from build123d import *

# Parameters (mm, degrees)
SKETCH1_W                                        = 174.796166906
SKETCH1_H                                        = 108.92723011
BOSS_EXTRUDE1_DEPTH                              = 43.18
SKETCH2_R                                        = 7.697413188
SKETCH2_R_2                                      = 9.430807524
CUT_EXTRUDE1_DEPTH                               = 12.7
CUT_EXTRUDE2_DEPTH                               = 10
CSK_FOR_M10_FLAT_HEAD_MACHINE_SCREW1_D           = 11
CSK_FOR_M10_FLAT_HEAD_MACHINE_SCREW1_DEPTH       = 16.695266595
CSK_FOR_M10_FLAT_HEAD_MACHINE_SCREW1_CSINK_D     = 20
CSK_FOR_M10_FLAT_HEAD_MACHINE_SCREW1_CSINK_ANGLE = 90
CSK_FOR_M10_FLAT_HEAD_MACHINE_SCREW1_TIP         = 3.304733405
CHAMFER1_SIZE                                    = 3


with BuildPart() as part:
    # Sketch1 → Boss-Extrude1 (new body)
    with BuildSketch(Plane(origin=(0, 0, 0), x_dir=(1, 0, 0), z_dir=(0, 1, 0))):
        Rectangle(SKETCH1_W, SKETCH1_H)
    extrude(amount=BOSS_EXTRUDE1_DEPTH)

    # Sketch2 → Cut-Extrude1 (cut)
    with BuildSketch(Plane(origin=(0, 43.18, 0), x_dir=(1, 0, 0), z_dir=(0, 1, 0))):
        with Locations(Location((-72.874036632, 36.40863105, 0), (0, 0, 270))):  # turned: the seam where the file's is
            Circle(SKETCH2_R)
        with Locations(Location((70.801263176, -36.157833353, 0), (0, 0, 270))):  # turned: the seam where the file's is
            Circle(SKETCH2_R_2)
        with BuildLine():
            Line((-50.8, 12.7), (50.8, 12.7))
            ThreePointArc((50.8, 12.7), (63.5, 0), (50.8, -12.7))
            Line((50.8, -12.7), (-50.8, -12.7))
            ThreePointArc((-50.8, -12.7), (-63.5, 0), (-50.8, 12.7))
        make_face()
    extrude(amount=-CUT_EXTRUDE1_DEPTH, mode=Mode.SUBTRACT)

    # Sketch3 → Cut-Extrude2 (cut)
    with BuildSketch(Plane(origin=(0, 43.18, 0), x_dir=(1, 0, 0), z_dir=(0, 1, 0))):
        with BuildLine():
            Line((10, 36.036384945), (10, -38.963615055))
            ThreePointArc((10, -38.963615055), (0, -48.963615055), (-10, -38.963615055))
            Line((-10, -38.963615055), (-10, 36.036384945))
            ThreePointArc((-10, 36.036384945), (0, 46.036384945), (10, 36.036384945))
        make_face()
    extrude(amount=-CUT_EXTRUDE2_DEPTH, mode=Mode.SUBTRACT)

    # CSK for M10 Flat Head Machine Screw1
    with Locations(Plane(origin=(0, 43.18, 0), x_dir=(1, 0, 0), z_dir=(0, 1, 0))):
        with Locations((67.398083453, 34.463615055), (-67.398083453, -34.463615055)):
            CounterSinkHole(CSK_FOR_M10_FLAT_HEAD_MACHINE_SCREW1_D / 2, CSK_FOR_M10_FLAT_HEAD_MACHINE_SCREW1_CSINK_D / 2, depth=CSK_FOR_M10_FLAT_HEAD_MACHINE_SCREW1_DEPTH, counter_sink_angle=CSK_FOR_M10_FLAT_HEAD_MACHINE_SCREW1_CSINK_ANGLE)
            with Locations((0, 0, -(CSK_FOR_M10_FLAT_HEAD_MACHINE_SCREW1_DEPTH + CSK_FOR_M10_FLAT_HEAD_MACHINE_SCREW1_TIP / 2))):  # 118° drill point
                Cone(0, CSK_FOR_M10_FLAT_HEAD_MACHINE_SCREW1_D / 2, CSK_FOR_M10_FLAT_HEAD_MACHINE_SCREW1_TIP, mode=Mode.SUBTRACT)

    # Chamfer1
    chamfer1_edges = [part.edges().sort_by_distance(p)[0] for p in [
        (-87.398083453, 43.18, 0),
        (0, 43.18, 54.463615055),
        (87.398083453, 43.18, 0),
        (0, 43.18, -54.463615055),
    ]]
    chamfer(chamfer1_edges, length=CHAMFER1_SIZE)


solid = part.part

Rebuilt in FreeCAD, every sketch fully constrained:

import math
import FreeCAD as App
import Part
import Sketcher


def edges_at(feature, points):
    """Names of the edges that pass closest to the given points."""
    edges = feature.Shape.Edges
    near = lambda p: min(range(len(edges)), key=lambda i: edges[i].distToShape(Part.Vertex(*p))[0])
    return sorted({f"Edge{near(p) + 1}" for p in points})

doc = App.newDocument("Part")
body = doc.addObject("PartDesign::Body", "Body")

# Sketch on XZ plane
sketch1 = body.newObject("Sketcher::SketchObject", "Sketch")
sketch1.AttachmentSupport = (doc.getObject("XZ_Plane"), [""])
sketch1.MapMode = "FlatFace"
sketch1.addGeometry([
    Part.LineSegment(App.Vector(-87.398083, -54.463615, 0), App.Vector(-87.398083, 54.463615, 0)),
    Part.LineSegment(App.Vector(-87.398083, 54.463615, 0), App.Vector(87.398083, 54.463615, 0)),
    Part.LineSegment(App.Vector(87.398083, 54.463615, 0), App.Vector(87.398083, -54.463615, 0)),
    Part.LineSegment(App.Vector(87.398083, -54.463615, 0), App.Vector(-87.398083, -54.463615, 0)),
], False)
sketch1.addConstraint([
    Sketcher.Constraint("Coincident", 0, 2, 1, 1),
    Sketcher.Constraint("Coincident", 1, 2, 2, 1),
    Sketcher.Constraint("Coincident", 2, 2, 3, 1),
    Sketcher.Constraint("Coincident", 3, 2, 0, 1),
    Sketcher.Constraint("Vertical", 0),
    Sketcher.Constraint("Horizontal", 1),
    Sketcher.Constraint("Vertical", 2),
    Sketcher.Constraint("Horizontal", 3),
    Sketcher.Constraint("Symmetric", 0, 2, 2, 2, -1, 1),
    Sketcher.Constraint("DistanceY", 0, 1, 0, 2, 108.92723),
    Sketcher.Constraint("DistanceX", 1, 1, 1, 2, 174.796167),
])
pad1 = body.newObject("PartDesign::Pad", "Pad")
pad1.Profile = sketch1
pad1.Length = 43.18
pad1.Reversed = True

# Sketch on XZ plane
sketch2 = body.newObject("Sketcher::SketchObject", "Sketch001")
sketch2.AttachmentSupport = (doc.getObject("XZ_Plane"), [""])
sketch2.MapMode = "FlatFace"
sketch2.AttachmentOffset = App.Placement(App.Vector(0, 0, -43.18), App.Rotation())
sketch2.addGeometry([
    Part.Circle(App.Vector(-72.874037, -36.408631, 0), App.Vector(0, 0, 1), 7.697413),  # 0
    Part.Circle(App.Vector(70.801263, 36.157833, 0), App.Vector(0, 0, 1), 9.430808),  # 1
    Part.LineSegment(App.Vector(50.8, -12.7, 0), App.Vector(-50.8, -12.7, 0)),  # 2
    Part.ArcOfCircle(Part.Circle(App.Vector(-50.8, 0, 0), App.Vector(0, 0, 1), 12.7), math.radians(90), math.radians(270)),  # 3
    Part.LineSegment(App.Vector(-50.8, 12.7, 0), App.Vector(50.8, 12.7, 0)),  # 4
    Part.ArcOfCircle(Part.Circle(App.Vector(50.8, 0, 0), App.Vector(0, 0, 1), 12.7), math.radians(-90), math.radians(90)),  # 5
], False)
sketch2.addConstraint([
    Sketcher.Constraint("Tangent", 2, 2, 3, 2),
    Sketcher.Constraint("Tangent", 3, 1, 4, 1),
    Sketcher.Constraint("Tangent", 4, 2, 5, 2),
    Sketcher.Constraint("Tangent", 5, 1, 2, 1),
    Sketcher.Constraint("Horizontal", 2),
    Sketcher.Constraint("Horizontal", 4),
    Sketcher.Constraint("Symmetric", 3, 3, 5, 3, -1, 1),
    Sketcher.Constraint("Radius", 3, 12.7),
    Sketcher.Constraint("DistanceX", 2, 2, 2, 1, 101.6),
    Sketcher.Constraint("Diameter", 0, 15.394826),
    Sketcher.Constraint("Diameter", 1, 18.861615),
    Sketcher.Constraint("DistanceX", 0, 3, 1, 3, 143.6753),
    Sketcher.Constraint("DistanceY", 0, 3, -1, 1, 36.408631),
    Sketcher.Constraint("DistanceX", 0, 3, -1, 1, 72.874037),
    Sketcher.Constraint("DistanceY", -1, 1, 1, 3, 36.157833),
])
pocket1 = body.newObject("PartDesign::Pocket", "Pocket")
pocket1.Profile = sketch2
pocket1.Length = 12.7
pocket1.Reversed = True

# Sketch on XZ plane
sketch3 = body.newObject("Sketcher::SketchObject", "Sketch002")
sketch3.AttachmentSupport = (doc.getObject("XZ_Plane"), [""])
sketch3.MapMode = "FlatFace"
sketch3.AttachmentOffset = App.Placement(App.Vector(0, 0, -43.18), App.Rotation())
sketch3.addGeometry([
    Part.LineSegment(App.Vector(10, 38.963615, 0), App.Vector(10, -36.036385, 0)),
    Part.ArcOfCircle(Part.Circle(App.Vector(0, -36.036385, 0), App.Vector(0, 0, 1), 10), math.radians(180), math.radians(360)),
    Part.LineSegment(App.Vector(-10, -36.036385, 0), App.Vector(-10, 38.963615, 0)),
    Part.ArcOfCircle(Part.Circle(App.Vector(0, 38.963615, 0), App.Vector(0, 0, 1), 10), math.radians(0), math.radians(180)),
], False)
sketch3.addConstraint([
    Sketcher.Constraint("Tangent", 0, 2, 1, 2),
    Sketcher.Constraint("Tangent", 1, 1, 2, 1),
    Sketcher.Constraint("Tangent", 2, 2, 3, 2),
    Sketcher.Constraint("Tangent", 3, 1, 0, 1),
    Sketcher.Constraint("Vertical", 0),
    Sketcher.Constraint("Vertical", 2),
    Sketcher.Constraint("PointOnObject", 1, 3, -2),
    Sketcher.Constraint("Radius", 1, 10.0),
    Sketcher.Constraint("DistanceY", 0, 2, 0, 1, 75.0),
    Sketcher.Constraint("DistanceY", 1, 3, -1, 1, 36.036385),
])
pocket2 = body.newObject("PartDesign::Pocket", "Pocket001")
pocket2.Profile = sketch3
pocket2.Length = 10
pocket2.Reversed = True

# Sketch on XZ plane
sketch4 = body.newObject("Sketcher::SketchObject", "Sketch003")
sketch4.AttachmentSupport = (doc.getObject("XZ_Plane"), [""])
sketch4.MapMode = "FlatFace"
sketch4.AttachmentOffset = App.Placement(App.Vector(0, 0, -43.18), App.Rotation())
sketch4.addGeometry([
    Part.Circle(App.Vector(67.398083, -34.463615, 0), App.Vector(0, 0, 1), 5.5),
    Part.Circle(App.Vector(-67.398083, 34.463615, 0), App.Vector(0, 0, 1), 5.5),
], False)
sketch4.addConstraint([
    Sketcher.Constraint("Equal", 0, 1),
    Sketcher.Constraint("Symmetric", 0, 3, 1, 3, -1, 1),
    Sketcher.Constraint("Diameter", 0, 11.0),
    Sketcher.Constraint("DistanceY", 0, 3, 1, 3, 68.92723),
    Sketcher.Constraint("DistanceX", -1, 1, 0, 3, 67.398083),
])
doc.recompute()
hole = body.newObject("PartDesign::Hole", "Hole")
hole.Profile = sketch4
hole.ThreadType = "None"
hole.Diameter = 11
hole.DepthType = "Dimension"
hole.Depth = 16.695267
hole.DrillPoint = "Angled"
hole.DrillPointAngle = 118
hole.HoleCutType = "Countersink"
hole.HoleCutDiameter = 20
hole.HoleCutCountersinkAngle = 90
hole.Reversed = True
doc.recompute()

chamfer = body.newObject("PartDesign::Chamfer", "Chamfer")
chamfer.Base = (hole, edges_at(hole, [
    (-87.398, 43.18, 0),
    (0, 43.18, 54.464),
    (87.398, 43.18, 0),
    (0, 43.18, -54.464),
]))
chamfer.Size = 3

doc.recompute()
